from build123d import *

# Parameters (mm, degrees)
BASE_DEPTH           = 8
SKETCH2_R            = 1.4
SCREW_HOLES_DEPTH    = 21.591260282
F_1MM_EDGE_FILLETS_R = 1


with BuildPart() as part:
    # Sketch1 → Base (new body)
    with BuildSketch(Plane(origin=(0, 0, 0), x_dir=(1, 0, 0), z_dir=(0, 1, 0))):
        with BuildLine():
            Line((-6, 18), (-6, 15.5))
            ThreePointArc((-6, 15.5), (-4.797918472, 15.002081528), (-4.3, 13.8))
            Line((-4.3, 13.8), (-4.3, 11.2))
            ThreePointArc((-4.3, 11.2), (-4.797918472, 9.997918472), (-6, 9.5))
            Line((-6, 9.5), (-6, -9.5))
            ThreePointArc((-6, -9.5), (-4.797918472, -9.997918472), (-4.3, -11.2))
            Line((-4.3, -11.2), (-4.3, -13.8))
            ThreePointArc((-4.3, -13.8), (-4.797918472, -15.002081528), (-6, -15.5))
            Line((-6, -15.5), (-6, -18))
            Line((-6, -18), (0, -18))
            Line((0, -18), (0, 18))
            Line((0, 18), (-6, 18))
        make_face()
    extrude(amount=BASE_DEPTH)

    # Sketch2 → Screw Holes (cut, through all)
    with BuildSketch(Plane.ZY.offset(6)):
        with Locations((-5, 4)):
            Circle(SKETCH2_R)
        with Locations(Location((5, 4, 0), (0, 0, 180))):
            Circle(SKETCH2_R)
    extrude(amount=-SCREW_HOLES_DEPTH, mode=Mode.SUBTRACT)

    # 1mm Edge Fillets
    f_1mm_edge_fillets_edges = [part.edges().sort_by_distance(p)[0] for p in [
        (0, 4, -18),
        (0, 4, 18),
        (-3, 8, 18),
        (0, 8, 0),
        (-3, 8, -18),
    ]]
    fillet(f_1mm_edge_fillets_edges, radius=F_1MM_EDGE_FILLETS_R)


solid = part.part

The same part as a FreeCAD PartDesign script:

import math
import FreeCAD as App
import Part
import Sketcher
from FreeCAD import Vector


def edges_at(feature, points):
    """Names of the edges that pass closest to the given points."""
    edges = feature.Shape.Edges
    near = lambda p: min(range(len(edges)), key=lambda i: edges[i].distToShape(Part.Vertex(*p))[0])
    return sorted({f"Edge{near(p) + 1}" for p in points})

doc = App.newDocument("Part")
body = doc.addObject("PartDesign::Body", "Body")

sketch1 = doc.addObject("Sketcher::SketchObject", "Sketch")
body.addObject(sketch1)
sketch1.AttachmentSupport = (doc.XZ_Plane, [""])
sketch1.MapMode = "FlatFace"
sketch1.addGeometry([
    Part.LineSegment(Vector(-6, -18, 0), Vector(-6, -15.5, 0)),
    Part.ArcOfCircle(Part.Circle(Vector(-6, -13.8, 0), Vector(0, 0, 1), 1.7), math.radians(-90), math.radians(0)),
    Part.LineSegment(Vector(-4.3, -13.8, 0), Vector(-4.3, -11.2, 0)),
    Part.ArcOfCircle(Part.Circle(Vector(-6, -11.2, 0), Vector(0, 0, 1), 1.7), math.radians(0), math.radians(90)),
    Part.LineSegment(Vector(-6, -9.5, 0), Vector(-6, 9.5, 0)),
    Part.ArcOfCircle(Part.Circle(Vector(-6, 11.2, 0), Vector(0, 0, 1), 1.7), math.radians(-90), math.radians(0)),
    Part.LineSegment(Vector(-4.3, 11.2, 0), Vector(-4.3, 13.8, 0)),
    Part.ArcOfCircle(Part.Circle(Vector(-6, 13.8, 0), Vector(0, 0, 1), 1.7), math.radians(0), math.radians(90)),
    Part.LineSegment(Vector(-6, 15.5, 0), Vector(-6, 18, 0)),
    Part.LineSegment(Vector(-6, 18, 0), Vector(0, 18, 0)),
    Part.LineSegment(Vector(0, 18, 0), Vector(0, -18, 0)),
    Part.LineSegment(Vector(0, -18, 0), Vector(-6, -18, 0)),
], False)
sketch1.addConstraint([
    Sketcher.Constraint("Coincident", 0, 2, 1, 1),
    Sketcher.Constraint("Tangent", 1, 2, 2, 1),
    Sketcher.Constraint("Tangent", 2, 2, 3, 1),
    Sketcher.Constraint("Coincident", 3, 2, 4, 1),
    Sketcher.Constraint("Coincident", 4, 2, 5, 1),
    Sketcher.Constraint("Tangent", 5, 2, 6, 1),
    Sketcher.Constraint("Tangent", 6, 2, 7, 1),
    Sketcher.Constraint("Coincident", 7, 2, 8, 1),
    Sketcher.Constraint("Coincident", 8, 2, 9, 1),
    Sketcher.Constraint("Coincident", 9, 2, 10, 1),
    Sketcher.Constraint("Coincident", 10, 2, 11, 1),
    Sketcher.Constraint("Coincident", 11, 2, 0, 1),
    Sketcher.Constraint("Vertical", 0),
    Sketcher.Constraint("Vertical", 2),
    Sketcher.Constraint("Vertical", 4),
    Sketcher.Constraint("Vertical", 6),
    Sketcher.Constraint("Vertical", 8),
    Sketcher.Constraint("Horizontal", 9),
    Sketcher.Constraint("Vertical", 10),
    Sketcher.Constraint("Horizontal", 11),
    Sketcher.Constraint("Equal", 1, 3),
    Sketcher.Constraint("Equal", 3, 5),
    Sketcher.Constraint("Equal", 5, 7),
    Sketcher.Constraint("Symmetric", 9, 2, 10, 2, -1, 1),
    Sketcher.Constraint("Symmetric", 3, 3, 5, 3, -1),
    Sketcher.Constraint("Symmetric", 0, 2, 7, 2, -1),
    Sketcher.Constraint("Vertical", 7, 3, 0, 2),
    Sketcher.Constraint("Vertical", 0, 2, 3, 2),
    Sketcher.Constraint("Radius", 1, 1.7),
    Sketcher.Constraint("DistanceX", 9, 1, 9, 2, 6.0),
    Sketcher.Constraint("DistanceY", 4, 1, 4, 2, 19.0),
    Sketcher.Constraint("DistanceY", 10, 2, 10, 1, 36.0),
    Sketcher.Constraint("DistanceY", 0, 1, 0, 2, 2.5),
])
pad1 = doc.addObject("PartDesign::Pad", "Pad")
body.addObject(pad1)
pad1.Profile = sketch1
pad1.Length = 8
pad1.Reversed = True

sketch2 = doc.addObject("Sketcher::SketchObject", "Sketch001")
body.addObject(sketch2)
sketch2.AttachmentSupport = (doc.YZ_Plane, [""])
sketch2.MapMode = "FlatFace"
sketch2.AttachmentOffset = App.Placement(Vector(0, 0, -6), App.Rotation())
sketch2.addGeometry([
    Part.Circle(Vector(4, -5, 0), Vector(0, 0, 1), 1.4),
    Part.Circle(Vector(4, 5, 0), Vector(0, 0, 1), 1.4),
], False)
sketch2.addConstraint([
    Sketcher.Constraint("Equal", 0, 1),
    Sketcher.Constraint("Symmetric", 0, 3, 1, 3, -1),
    Sketcher.Constraint("Diameter", 0, 2.8),
    Sketcher.Constraint("DistanceX", -1, 1, 0, 3, 4.0),
    Sketcher.Constraint("DistanceY", 0, 3, -1, 1, 5.0),
])
pocket1 = doc.addObject("PartDesign::Pocket", "Pocket")
body.addObject(pocket1)
pocket1.Profile = sketch2
pocket1.Type = "ThroughAll"
pocket1.Reversed = True
doc.recompute()

fillet = doc.addObject("PartDesign::Fillet", "Fillet")
body.addObject(fillet)
fillet.Base = (pocket1, edges_at(pocket1, [
    (0, 4, -18),
    (0, 4, 18),
    (-3, 8, 18),
    (0, 8, 0),
    (-3, 8, -18),
]))
fillet.Radius = 1

doc.recompute()
